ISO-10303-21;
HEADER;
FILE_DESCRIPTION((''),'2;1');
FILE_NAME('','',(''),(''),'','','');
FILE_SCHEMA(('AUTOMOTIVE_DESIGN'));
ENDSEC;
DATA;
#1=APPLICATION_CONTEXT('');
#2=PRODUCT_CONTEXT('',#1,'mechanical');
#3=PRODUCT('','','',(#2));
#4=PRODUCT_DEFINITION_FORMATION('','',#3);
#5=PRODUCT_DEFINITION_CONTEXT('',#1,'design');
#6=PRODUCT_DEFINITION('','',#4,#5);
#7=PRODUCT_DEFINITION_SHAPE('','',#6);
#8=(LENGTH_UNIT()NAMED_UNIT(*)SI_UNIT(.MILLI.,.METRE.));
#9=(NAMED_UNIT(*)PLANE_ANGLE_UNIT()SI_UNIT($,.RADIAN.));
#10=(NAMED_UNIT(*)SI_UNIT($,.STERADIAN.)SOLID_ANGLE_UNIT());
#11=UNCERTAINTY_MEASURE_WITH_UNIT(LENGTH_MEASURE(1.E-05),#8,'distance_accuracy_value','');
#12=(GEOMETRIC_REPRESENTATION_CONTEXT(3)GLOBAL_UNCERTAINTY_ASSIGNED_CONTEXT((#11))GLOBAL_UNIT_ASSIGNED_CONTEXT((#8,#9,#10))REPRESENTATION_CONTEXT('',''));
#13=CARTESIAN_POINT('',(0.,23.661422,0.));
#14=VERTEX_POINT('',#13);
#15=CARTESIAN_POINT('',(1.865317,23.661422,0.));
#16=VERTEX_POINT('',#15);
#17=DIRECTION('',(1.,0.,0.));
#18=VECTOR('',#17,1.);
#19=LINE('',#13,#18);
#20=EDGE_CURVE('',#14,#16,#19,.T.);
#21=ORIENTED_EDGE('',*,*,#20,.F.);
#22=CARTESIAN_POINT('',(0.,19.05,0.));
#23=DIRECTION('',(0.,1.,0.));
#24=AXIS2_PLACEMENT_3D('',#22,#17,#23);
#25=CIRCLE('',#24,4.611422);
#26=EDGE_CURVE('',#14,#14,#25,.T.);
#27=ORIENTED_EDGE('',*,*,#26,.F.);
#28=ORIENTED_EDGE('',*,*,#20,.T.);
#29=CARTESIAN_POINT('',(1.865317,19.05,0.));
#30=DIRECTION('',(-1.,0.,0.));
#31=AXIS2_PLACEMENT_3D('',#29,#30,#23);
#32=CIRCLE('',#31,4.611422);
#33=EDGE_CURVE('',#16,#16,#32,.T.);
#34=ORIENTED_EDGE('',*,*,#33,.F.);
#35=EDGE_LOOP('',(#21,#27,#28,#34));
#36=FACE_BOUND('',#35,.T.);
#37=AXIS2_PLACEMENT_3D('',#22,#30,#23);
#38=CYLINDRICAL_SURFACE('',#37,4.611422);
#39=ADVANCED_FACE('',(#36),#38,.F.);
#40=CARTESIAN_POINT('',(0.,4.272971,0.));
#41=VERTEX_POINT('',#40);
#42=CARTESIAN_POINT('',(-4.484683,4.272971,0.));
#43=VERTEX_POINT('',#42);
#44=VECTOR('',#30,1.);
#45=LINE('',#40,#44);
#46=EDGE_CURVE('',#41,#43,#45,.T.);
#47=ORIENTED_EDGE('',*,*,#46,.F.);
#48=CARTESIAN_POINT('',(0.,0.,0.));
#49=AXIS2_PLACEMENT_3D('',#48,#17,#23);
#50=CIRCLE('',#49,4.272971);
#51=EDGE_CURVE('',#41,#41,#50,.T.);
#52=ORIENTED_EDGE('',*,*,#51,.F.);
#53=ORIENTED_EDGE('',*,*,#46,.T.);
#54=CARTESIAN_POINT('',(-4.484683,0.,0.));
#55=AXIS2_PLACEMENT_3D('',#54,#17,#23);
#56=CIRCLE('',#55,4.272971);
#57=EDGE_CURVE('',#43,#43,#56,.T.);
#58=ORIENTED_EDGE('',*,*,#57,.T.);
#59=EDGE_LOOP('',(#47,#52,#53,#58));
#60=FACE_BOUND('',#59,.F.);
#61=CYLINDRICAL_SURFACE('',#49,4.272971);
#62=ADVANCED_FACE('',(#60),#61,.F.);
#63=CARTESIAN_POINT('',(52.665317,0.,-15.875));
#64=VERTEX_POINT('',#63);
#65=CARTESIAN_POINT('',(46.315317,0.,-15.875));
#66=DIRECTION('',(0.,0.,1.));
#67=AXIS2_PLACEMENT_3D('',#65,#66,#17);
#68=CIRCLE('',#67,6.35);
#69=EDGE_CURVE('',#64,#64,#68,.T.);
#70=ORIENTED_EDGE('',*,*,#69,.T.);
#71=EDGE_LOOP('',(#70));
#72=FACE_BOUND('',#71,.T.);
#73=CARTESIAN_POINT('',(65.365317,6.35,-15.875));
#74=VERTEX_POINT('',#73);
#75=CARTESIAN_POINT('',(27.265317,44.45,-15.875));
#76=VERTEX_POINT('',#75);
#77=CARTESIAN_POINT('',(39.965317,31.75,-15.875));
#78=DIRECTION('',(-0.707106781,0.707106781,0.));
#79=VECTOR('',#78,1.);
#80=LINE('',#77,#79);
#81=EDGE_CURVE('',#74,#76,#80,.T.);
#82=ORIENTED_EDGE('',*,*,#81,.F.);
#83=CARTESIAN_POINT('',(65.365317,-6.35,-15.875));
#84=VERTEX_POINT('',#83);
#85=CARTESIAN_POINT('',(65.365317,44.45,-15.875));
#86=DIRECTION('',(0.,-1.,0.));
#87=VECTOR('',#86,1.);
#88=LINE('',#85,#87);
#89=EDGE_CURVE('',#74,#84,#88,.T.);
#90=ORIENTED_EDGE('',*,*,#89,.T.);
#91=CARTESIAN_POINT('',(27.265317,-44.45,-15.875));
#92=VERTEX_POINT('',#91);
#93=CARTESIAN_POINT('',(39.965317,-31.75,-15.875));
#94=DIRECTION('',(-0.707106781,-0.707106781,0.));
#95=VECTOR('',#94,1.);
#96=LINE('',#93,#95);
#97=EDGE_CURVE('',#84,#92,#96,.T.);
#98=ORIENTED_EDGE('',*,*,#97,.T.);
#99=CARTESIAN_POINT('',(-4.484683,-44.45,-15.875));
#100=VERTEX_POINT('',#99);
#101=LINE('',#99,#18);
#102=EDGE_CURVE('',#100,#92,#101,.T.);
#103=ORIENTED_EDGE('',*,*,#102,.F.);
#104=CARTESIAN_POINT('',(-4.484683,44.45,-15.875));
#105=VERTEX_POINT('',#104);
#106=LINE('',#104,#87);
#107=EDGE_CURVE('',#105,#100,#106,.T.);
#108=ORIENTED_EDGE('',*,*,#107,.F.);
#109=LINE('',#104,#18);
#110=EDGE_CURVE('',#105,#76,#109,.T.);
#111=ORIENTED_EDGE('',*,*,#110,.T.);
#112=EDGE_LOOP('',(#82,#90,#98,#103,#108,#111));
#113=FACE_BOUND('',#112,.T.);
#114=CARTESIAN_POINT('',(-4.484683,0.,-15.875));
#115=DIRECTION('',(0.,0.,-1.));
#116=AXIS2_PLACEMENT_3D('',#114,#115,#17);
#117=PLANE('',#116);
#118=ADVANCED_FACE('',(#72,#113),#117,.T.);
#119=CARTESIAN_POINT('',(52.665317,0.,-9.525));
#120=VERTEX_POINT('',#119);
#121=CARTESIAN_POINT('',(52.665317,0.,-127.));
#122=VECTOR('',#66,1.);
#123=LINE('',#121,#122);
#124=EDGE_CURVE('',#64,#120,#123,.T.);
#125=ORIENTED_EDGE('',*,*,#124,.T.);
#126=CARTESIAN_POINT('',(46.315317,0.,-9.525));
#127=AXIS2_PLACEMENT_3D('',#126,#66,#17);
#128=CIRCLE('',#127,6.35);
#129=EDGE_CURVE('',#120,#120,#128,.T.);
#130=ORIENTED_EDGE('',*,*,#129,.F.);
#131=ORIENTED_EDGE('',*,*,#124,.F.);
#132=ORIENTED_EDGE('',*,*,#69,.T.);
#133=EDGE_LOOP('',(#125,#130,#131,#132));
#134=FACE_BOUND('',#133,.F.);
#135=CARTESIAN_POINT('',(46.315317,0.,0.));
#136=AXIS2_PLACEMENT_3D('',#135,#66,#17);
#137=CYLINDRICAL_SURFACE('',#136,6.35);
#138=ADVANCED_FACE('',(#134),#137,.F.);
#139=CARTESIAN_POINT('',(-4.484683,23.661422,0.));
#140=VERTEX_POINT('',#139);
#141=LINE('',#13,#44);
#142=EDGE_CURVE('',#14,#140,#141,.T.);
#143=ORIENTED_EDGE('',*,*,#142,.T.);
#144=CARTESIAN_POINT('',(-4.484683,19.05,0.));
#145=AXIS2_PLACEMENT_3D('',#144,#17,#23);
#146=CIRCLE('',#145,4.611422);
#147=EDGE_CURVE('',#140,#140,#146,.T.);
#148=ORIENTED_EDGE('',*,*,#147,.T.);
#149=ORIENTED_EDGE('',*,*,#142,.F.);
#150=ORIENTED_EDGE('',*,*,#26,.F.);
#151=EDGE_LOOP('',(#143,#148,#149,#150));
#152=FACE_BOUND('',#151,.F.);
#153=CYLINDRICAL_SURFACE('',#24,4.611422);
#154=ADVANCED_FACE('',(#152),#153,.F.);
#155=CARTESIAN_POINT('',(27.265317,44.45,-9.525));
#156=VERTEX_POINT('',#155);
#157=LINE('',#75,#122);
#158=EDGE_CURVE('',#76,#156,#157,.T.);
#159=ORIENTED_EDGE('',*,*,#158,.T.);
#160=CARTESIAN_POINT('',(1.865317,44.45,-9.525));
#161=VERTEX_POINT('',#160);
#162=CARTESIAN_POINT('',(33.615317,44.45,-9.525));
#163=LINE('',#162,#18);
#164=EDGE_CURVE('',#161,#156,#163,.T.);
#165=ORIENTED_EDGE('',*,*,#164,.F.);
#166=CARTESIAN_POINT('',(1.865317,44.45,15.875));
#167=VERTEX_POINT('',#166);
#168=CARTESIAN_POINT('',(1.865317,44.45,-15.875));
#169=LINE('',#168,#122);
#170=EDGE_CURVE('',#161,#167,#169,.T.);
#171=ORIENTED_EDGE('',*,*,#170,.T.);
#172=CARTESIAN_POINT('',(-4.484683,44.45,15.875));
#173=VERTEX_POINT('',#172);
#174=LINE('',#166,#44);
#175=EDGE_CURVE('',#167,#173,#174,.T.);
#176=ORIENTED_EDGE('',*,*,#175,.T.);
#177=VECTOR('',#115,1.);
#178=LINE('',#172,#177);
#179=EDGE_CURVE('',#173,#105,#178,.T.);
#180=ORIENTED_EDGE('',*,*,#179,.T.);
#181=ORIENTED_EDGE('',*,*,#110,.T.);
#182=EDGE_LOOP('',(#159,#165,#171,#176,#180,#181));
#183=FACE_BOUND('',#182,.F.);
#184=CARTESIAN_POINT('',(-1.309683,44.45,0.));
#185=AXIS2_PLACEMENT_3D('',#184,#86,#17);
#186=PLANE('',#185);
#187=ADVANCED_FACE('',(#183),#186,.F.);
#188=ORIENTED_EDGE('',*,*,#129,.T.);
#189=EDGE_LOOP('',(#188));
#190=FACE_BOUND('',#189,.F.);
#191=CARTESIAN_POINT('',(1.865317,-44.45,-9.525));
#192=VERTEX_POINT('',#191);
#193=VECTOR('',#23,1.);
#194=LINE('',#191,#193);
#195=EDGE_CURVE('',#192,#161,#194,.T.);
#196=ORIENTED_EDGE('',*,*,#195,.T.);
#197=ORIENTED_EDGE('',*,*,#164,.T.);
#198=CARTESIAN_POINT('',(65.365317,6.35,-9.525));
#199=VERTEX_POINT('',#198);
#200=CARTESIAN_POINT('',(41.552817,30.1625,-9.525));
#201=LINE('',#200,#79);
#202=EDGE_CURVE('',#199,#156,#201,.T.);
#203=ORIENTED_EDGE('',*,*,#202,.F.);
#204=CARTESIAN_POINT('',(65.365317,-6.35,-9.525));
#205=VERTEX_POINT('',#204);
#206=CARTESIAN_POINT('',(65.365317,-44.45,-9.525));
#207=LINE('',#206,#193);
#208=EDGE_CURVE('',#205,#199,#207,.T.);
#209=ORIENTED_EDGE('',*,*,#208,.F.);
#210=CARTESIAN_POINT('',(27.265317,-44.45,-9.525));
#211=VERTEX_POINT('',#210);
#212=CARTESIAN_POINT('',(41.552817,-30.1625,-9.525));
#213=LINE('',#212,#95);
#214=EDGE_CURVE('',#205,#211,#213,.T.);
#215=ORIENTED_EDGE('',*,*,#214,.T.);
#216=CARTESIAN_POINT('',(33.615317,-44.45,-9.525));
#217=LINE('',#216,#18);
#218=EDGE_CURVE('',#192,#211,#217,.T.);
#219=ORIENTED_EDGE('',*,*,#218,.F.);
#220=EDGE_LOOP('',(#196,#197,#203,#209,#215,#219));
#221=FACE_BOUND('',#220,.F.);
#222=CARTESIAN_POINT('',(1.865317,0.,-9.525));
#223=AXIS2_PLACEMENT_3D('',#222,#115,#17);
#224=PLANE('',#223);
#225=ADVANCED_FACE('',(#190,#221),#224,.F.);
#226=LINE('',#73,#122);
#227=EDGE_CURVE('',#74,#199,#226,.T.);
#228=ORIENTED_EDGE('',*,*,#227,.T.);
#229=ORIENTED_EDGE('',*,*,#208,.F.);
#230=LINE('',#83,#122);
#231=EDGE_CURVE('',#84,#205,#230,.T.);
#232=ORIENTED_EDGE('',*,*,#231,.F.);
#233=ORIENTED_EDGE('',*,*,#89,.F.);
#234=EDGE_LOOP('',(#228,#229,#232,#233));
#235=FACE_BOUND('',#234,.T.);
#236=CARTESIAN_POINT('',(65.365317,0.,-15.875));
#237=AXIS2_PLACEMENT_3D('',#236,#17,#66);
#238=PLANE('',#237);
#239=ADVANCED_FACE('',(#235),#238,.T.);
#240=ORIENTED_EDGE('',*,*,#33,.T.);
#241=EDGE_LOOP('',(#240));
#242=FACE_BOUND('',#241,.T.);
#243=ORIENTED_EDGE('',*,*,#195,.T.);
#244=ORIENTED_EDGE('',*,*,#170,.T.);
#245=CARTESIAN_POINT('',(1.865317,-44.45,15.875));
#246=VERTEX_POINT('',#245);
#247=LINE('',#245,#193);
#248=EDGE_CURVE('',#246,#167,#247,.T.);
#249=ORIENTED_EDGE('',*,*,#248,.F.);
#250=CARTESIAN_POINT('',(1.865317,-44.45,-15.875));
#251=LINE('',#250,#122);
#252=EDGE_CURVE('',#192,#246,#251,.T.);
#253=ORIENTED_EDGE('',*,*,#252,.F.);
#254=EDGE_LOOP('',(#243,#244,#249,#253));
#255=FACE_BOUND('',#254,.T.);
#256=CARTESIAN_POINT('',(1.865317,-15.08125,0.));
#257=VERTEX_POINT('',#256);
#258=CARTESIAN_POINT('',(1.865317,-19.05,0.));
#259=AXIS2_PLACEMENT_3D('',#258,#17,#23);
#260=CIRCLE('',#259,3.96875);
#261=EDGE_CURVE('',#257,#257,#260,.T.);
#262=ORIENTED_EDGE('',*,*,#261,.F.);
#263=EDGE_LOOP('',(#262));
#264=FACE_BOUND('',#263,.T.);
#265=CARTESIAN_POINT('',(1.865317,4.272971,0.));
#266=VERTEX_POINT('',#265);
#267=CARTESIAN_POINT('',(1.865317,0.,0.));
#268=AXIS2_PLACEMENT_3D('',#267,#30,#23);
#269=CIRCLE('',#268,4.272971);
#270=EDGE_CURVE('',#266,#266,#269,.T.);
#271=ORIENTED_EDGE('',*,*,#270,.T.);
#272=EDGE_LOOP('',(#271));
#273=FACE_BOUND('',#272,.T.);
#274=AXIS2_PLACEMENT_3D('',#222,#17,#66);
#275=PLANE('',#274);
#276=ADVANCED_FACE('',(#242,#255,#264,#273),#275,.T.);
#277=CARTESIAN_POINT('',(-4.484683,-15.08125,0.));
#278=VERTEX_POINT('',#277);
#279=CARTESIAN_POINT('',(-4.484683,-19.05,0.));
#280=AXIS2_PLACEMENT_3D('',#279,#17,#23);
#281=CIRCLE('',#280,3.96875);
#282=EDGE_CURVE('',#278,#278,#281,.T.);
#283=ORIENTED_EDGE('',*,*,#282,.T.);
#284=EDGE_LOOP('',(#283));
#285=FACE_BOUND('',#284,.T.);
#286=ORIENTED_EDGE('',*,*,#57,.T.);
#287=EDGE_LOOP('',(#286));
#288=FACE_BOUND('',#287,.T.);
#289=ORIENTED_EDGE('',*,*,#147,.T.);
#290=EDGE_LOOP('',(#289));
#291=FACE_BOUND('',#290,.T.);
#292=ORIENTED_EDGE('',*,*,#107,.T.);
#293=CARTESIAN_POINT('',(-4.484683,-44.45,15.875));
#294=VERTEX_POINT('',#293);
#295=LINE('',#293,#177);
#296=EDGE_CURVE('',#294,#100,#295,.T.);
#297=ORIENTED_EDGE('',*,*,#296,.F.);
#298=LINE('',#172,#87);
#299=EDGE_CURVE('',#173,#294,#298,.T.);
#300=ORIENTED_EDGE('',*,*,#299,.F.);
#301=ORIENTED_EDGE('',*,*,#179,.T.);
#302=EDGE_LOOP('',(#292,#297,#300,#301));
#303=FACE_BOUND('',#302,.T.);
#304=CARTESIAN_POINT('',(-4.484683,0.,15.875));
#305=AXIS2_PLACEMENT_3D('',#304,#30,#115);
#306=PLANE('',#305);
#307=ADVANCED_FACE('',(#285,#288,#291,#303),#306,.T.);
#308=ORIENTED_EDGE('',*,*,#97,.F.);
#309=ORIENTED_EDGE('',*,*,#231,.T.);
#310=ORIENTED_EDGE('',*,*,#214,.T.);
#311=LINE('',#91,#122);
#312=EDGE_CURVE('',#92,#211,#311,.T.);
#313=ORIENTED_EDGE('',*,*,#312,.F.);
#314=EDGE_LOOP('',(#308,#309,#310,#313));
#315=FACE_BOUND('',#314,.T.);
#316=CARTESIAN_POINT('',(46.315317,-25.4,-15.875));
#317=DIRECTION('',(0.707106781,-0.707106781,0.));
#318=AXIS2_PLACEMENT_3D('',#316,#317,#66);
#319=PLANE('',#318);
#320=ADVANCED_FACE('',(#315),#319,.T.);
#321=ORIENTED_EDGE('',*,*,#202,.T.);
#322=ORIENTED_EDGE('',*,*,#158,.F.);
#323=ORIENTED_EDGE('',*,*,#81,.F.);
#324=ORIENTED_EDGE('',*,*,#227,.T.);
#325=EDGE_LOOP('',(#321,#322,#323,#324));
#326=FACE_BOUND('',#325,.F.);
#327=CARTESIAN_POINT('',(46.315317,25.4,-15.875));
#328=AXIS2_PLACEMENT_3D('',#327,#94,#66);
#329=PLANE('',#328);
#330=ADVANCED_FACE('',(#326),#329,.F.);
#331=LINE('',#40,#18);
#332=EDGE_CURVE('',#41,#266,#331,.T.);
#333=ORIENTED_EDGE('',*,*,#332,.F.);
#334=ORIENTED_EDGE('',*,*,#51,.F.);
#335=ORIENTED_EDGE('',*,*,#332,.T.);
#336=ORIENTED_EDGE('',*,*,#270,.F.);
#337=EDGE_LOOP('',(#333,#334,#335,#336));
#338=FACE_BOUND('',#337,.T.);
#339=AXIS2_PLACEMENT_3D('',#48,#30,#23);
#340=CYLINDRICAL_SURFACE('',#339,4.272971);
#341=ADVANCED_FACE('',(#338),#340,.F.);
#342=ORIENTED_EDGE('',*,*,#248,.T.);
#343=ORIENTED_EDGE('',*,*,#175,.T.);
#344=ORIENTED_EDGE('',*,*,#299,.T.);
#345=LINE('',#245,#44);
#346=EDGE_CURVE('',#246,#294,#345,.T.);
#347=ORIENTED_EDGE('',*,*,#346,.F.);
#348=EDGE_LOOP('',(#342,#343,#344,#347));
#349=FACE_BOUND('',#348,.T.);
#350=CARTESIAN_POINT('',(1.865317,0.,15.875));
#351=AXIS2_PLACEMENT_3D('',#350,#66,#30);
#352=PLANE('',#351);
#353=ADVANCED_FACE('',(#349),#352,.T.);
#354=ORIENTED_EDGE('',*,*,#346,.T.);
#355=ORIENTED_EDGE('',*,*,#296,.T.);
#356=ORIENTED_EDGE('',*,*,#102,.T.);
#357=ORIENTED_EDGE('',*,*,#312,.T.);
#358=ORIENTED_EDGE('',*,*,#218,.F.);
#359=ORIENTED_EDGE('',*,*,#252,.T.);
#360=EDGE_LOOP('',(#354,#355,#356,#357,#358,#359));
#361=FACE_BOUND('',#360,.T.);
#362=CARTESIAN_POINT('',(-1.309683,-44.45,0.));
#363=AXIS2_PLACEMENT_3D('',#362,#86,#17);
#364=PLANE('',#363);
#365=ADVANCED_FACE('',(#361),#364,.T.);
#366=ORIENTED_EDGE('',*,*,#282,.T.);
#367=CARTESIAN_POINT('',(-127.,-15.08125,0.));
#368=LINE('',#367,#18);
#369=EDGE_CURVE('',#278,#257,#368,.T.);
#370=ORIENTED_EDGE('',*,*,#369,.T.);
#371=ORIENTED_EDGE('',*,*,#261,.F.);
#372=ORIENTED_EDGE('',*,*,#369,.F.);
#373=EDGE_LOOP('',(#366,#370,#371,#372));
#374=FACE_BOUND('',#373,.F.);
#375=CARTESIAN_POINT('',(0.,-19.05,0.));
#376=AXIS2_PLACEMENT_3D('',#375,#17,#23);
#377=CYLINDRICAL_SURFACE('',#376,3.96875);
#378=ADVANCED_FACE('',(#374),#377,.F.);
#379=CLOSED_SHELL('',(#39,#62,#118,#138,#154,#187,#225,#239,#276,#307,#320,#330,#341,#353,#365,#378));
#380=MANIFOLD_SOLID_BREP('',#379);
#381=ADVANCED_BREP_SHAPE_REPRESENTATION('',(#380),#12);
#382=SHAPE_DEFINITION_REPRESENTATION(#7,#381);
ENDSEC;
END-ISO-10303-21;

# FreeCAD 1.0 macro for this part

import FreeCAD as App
import Part
import Sketcher
from FreeCAD import Vector
Q = App.Units.Quantity


def edges_at(feature, points):
    """Names of the edges that pass closest to the given points."""
    edges = feature.Shape.Edges
    near = lambda p: min(range(len(edges)), key=lambda i: edges[i].distToShape(Part.Vertex(*p))[0])
    return sorted({f"Edge{near(p) + 1}" for p in points})


def add_polygon(sketch, points):
    """Adds a closed chain of lines whose ends are joined by coincident constraints."""
    first, n = sketch.GeometryCount, len(points)
    for a, b in zip(points, points[1:] + points[:1]):
        sketch.addGeometry(Part.LineSegment(App.Vector(*a, 0), App.Vector(*b, 0)), False)
    for i in range(n):
        sketch.addConstraint(Sketcher.Constraint("Coincident", first + i, 2, first + (i + 1) % n, 1))

doc = App.newDocument("Part")
body = doc.addObject("PartDesign::Body", "Body")

# Sketch on XZ plane
sketch1 = doc.addObject("Sketcher::SketchObject", "Sketch")
body.addObject(sketch1)
sketch1.AttachmentSupport = (doc.XZ_Plane, [""])
sketch1.MapMode = "FlatFace"
add_polygon(sketch1, [(2, 16), (-4, 16), (-4, -16), (65, -16), (65, -10), (2, -10)])  # lines 0-5
sketch1.addConstraint([
    Sketcher.Constraint("Horizontal", 0),
    Sketcher.Constraint("Vertical", 1),
    Sketcher.Constraint("Horizontal", 2),
    Sketcher.Constraint("Vertical", 3),
    Sketcher.Constraint("Horizontal", 4),
    Sketcher.Constraint("Vertical", 5),
    Sketcher.Constraint("Equal", 0, 3),
    Sketcher.Constraint("DistanceY", 5, 1, 5, 2, Q("1 in")),
    Sketcher.Constraint("DistanceX", 4, 2, 4, 1, Q("2.5 in")),
    Sketcher.Constraint("DistanceX", 0, 2, 0, 1, Q("0.25 in")),
    Sketcher.Constraint("DistanceY", -1, 1, 0, 2, Q("0.625 in")),
    Sketcher.Constraint("DistanceX", 0, 2, -1, 1, 4.484683),
])
pad1 = doc.addObject("PartDesign::Pad", "Pad")
body.addObject(pad1)
pad1.Profile = sketch1
pad1.Length = Q("3.5 in")
pad1.Midplane = True
doc.recompute()

chamfer = doc.addObject("PartDesign::Chamfer", "Chamfer")
body.addObject(chamfer)
chamfer.Base = (pad1, edges_at(pad1, [(65.365, 44.45, -12.7)]))
chamfer.Size = Q("1.5 in")
doc.recompute()

chamfer2 = doc.addObject("PartDesign::Chamfer", "Chamfer001")
body.addObject(chamfer2)
chamfer2.Base = (chamfer, edges_at(chamfer, [(65.365, -44.45, -12.7)]))
chamfer2.Size = Q("1.5 in")

# Sketch on YZ plane
sketch2 = doc.addObject("Sketcher::SketchObject", "Sketch001")
body.addObject(sketch2)
sketch2.AttachmentSupport = (doc.YZ_Plane, [""])
sketch2.MapMode = "FlatFace"
sketch2.addGeometry([
    Part.Circle(Vector(0, 0, 0), Vector(0, 0, 1), 4.3),
    Part.Circle(Vector(19.1, 0, 0), Vector(0, 0, 1), 4.6),
    Part.Circle(Vector(-19.1, 0, 0), Vector(0, 0, 1), 4),
], False)
sketch2.addConstraint([
    Sketcher.Constraint("Coincident", 0, 3, -1, 1),
    Sketcher.Constraint("Symmetric", 1, 3, 2, 3, -1, 1),
    Sketcher.Constraint("PointOnObject", 1, 3, -1),
    Sketcher.Constraint("Diameter", 2, Q("0.3125 in")),
    Sketcher.Constraint("DistanceX", 2, 3, 1, 3, Q("1.5 in")),
    Sketcher.Constraint("Diameter", 0, 8.545942),
    Sketcher.Constraint("Diameter", 1, 9.222844),
])
pocket1 = doc.addObject("PartDesign::Pocket", "Pocket")
body.addObject(pocket1)
pocket1.Profile = sketch2
pocket1.Length = Q("10 in")
pocket1.Midplane = True

# Sketch on XY plane
sketch3 = doc.addObject("Sketcher::SketchObject", "Sketch002")
body.addObject(sketch3)
sketch3.AttachmentSupport = (doc.XY_Plane, [""])
sketch3.MapMode = "FlatFace"
sketch3.addGeometry(Part.Circle(Vector(46, 0, 0), Vector(0, 0, 1), 6), False)
sketch3.addConstraint([
    Sketcher.Constraint("PointOnObject", 0, 3, -1),
    Sketcher.Constraint("Diameter", 0, Q("0.5 in")),
    Sketcher.Constraint("DistanceX", -1, 1, 0, 3, 46.315317),
])
pocket2 = doc.addObject("PartDesign::Pocket", "Pocket001")
body.addObject(pocket2)
pocket2.Profile = sketch3
pocket2.Length = Q("10 in")
pocket2.Midplane = True

doc.recompute()
